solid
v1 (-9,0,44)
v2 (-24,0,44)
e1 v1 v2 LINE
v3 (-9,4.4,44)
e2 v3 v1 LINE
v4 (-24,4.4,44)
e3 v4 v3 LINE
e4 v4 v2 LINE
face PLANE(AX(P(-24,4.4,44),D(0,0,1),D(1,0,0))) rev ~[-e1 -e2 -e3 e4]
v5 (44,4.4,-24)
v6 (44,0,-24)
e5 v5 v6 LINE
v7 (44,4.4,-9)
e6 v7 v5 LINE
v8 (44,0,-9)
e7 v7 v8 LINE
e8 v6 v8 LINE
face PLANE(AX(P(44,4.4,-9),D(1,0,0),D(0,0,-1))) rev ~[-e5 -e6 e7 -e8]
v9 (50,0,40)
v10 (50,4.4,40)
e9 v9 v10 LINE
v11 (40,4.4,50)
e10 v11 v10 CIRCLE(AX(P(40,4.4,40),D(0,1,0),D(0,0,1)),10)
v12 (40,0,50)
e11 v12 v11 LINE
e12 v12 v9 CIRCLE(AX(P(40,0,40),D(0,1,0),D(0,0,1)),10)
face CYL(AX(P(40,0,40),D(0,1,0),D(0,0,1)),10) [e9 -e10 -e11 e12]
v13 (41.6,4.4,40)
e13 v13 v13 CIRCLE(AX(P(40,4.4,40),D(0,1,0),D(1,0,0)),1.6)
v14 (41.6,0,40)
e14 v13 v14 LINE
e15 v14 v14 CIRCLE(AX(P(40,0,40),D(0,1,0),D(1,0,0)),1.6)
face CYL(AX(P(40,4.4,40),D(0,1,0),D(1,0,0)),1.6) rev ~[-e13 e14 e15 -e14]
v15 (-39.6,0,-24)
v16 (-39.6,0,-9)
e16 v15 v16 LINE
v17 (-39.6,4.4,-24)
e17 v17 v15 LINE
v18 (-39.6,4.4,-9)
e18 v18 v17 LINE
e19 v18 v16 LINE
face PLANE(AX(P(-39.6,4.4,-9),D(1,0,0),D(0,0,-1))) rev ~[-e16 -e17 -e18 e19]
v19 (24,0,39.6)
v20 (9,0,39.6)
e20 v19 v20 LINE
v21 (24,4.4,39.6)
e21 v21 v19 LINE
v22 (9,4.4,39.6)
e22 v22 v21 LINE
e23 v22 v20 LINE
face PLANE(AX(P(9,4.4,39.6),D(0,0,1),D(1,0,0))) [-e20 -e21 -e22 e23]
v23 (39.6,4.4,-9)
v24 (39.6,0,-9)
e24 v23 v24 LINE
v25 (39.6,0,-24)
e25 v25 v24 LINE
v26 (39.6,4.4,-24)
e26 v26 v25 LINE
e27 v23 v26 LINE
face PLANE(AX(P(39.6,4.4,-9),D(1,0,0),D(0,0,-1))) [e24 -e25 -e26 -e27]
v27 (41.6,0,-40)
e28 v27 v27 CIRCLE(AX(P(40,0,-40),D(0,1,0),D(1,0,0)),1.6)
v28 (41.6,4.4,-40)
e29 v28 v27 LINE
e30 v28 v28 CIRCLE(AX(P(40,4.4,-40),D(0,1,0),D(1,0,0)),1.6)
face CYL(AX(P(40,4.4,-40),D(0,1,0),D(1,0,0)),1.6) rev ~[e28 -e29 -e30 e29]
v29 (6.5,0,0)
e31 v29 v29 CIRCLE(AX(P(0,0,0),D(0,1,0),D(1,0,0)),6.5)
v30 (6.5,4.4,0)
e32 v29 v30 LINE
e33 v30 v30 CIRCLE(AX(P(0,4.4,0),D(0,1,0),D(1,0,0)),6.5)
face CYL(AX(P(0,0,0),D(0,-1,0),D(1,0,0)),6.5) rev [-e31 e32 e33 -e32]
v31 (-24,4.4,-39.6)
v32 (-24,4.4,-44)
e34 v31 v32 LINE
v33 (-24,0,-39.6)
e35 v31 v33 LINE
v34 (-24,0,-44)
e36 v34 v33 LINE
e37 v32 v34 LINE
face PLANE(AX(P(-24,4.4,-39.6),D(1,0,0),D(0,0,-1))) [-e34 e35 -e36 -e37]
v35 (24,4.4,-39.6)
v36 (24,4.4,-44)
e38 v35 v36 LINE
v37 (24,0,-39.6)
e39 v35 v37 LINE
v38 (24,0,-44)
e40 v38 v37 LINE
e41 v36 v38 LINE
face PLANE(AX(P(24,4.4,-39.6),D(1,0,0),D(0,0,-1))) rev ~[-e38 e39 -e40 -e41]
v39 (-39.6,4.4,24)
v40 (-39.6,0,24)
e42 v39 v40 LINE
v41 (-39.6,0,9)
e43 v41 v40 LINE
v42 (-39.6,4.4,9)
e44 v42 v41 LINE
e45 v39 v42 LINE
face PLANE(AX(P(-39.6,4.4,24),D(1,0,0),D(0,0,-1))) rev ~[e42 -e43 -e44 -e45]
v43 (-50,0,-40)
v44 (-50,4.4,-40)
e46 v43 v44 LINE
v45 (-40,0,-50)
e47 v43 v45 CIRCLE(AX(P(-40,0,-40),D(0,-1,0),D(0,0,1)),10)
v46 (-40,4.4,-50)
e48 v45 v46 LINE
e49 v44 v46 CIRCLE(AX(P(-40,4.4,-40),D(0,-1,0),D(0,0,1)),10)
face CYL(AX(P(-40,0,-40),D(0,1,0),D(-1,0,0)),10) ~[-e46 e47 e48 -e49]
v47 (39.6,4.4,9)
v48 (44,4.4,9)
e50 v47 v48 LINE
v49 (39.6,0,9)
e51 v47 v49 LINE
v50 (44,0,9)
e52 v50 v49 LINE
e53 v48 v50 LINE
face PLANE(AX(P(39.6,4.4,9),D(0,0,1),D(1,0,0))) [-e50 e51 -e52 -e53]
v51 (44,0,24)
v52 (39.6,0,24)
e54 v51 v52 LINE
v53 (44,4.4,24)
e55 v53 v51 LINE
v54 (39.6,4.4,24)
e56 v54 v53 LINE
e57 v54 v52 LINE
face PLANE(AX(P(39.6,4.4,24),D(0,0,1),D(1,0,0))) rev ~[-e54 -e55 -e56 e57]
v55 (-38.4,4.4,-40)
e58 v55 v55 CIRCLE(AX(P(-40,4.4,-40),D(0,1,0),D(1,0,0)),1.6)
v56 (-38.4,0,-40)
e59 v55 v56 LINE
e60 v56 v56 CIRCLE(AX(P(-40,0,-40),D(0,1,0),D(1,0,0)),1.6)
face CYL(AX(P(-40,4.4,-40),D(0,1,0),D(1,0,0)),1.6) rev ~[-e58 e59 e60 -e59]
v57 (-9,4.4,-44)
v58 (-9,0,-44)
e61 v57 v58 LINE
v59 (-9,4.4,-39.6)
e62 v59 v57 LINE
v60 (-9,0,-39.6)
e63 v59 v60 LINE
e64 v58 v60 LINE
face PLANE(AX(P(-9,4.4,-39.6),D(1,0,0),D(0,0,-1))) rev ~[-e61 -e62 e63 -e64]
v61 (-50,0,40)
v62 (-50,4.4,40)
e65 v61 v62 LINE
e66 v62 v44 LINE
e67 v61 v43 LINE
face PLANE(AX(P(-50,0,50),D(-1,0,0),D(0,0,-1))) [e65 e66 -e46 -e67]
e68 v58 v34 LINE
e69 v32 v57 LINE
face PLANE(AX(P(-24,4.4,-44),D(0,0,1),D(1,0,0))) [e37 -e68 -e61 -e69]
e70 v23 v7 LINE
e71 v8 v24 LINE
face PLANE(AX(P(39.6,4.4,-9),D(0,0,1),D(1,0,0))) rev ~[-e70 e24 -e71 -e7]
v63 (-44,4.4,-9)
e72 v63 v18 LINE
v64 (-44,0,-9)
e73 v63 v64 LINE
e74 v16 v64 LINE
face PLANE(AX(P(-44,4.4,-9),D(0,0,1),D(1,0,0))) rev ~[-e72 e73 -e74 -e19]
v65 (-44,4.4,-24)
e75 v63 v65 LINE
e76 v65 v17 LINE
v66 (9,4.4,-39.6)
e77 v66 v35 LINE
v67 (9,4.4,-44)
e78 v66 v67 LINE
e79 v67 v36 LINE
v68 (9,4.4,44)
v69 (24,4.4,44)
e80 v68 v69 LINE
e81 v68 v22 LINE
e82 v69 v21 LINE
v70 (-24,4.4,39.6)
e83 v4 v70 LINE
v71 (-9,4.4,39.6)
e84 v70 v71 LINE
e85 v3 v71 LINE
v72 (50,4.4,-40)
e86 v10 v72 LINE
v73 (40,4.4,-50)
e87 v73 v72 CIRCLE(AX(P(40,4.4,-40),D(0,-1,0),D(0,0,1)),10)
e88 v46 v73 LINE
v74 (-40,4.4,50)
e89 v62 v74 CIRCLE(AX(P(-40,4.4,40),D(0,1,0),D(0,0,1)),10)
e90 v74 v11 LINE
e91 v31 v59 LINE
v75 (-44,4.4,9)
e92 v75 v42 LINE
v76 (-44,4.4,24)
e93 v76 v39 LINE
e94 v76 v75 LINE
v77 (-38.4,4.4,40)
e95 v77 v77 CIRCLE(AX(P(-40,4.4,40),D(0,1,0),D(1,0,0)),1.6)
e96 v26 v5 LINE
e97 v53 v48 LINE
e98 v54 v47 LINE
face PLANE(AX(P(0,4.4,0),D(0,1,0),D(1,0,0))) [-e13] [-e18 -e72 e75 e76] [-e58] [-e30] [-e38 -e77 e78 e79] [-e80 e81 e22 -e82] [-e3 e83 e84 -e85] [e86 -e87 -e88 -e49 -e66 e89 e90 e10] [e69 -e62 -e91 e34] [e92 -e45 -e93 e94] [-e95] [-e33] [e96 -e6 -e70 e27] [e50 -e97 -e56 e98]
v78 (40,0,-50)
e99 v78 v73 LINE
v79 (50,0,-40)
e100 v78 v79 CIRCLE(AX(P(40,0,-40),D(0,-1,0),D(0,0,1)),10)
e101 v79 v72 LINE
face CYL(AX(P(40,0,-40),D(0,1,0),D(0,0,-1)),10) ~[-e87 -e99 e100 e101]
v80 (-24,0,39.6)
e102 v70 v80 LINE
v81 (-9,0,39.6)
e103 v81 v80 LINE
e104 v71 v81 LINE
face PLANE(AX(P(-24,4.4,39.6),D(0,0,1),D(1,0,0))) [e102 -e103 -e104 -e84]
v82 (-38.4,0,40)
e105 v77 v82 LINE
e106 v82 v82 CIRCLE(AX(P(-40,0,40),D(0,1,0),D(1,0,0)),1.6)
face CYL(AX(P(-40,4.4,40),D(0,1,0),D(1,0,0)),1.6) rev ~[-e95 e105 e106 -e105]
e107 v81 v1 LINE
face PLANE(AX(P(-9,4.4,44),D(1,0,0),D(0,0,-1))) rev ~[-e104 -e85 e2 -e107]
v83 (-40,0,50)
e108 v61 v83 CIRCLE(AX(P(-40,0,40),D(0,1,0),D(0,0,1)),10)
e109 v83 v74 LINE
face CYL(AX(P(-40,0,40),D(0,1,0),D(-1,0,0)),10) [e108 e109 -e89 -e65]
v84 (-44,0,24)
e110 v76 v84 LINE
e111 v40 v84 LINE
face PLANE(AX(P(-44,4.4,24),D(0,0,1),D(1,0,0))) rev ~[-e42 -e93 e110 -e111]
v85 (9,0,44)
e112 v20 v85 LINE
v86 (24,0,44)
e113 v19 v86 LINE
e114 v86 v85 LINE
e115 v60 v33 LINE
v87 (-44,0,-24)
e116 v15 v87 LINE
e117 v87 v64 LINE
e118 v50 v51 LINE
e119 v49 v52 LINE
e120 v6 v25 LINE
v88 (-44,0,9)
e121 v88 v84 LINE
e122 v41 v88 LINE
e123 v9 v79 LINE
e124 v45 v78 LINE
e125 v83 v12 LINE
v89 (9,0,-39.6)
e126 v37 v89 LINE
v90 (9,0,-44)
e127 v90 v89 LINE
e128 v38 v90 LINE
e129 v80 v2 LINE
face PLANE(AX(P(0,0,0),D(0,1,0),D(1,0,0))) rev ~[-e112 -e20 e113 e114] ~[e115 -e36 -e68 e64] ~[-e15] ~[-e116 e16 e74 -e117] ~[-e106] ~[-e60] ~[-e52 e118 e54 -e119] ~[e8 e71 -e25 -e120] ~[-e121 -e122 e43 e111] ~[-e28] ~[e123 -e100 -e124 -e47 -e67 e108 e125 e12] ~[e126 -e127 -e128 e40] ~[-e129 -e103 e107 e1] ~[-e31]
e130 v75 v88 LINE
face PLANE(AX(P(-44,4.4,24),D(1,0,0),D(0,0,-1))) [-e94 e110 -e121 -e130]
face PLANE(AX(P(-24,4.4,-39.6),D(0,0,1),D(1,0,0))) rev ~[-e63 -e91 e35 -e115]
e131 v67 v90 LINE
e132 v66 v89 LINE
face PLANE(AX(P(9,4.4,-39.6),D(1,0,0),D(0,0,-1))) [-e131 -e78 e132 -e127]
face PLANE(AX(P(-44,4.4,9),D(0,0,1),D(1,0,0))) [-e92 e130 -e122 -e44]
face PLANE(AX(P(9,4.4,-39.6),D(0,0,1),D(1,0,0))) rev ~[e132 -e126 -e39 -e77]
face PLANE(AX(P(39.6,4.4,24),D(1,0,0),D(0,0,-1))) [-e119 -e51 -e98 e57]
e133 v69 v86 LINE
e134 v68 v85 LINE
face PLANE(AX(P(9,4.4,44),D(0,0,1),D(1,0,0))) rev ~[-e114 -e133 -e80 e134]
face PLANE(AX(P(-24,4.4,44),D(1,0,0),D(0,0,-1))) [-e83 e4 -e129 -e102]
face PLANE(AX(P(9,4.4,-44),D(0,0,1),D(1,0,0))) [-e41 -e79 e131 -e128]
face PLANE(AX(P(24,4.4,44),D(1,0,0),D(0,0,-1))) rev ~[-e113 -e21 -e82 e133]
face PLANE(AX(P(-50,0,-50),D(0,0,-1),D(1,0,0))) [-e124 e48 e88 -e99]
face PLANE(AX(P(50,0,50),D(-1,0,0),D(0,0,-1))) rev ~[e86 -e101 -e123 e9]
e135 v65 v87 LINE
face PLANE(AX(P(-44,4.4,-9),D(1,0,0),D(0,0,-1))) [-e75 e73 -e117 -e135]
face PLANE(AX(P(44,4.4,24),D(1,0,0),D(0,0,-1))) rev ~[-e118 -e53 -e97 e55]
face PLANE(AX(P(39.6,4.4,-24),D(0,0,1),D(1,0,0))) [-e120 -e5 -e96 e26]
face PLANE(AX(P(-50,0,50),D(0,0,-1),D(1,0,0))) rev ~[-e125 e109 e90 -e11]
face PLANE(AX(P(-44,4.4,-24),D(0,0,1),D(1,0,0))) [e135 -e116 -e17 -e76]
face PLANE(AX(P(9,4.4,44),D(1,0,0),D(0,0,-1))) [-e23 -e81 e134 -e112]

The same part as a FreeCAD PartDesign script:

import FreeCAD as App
import Part
import Sketcher
from FreeCAD import Vector


def edges_at(feature, points):
    """Names of the edges that pass closest to the given points."""
    edges = feature.Shape.Edges
    near = lambda p: min(range(len(edges)), key=lambda i: edges[i].distToShape(Part.Vertex(*p))[0])
    return sorted({f"Edge{near(p) + 1}" for p in points})

doc = App.newDocument("Part")
body = doc.addObject("PartDesign::Body", "Body")

sketch1 = body.newObject("Sketcher::SketchObject", "Sketch")
sketch1.AttachmentSupport = (doc.getObject("XZ_Plane"), [""])
sketch1.MapMode = "FlatFace"
sketch1.addGeometry([
    Part.LineSegment(Vector(-50, -50, 0), Vector(-50, 50, 0)),
    Part.LineSegment(Vector(-50, 50, 0), Vector(50, 50, 0)),
    Part.LineSegment(Vector(50, 50, 0), Vector(50, -50, 0)),
    Part.LineSegment(Vector(50, -50, 0), Vector(-50, -50, 0)),
    Part.Circle(Vector(0, 0, 0), Vector(0, 0, 1), 6),
], False)
sketch1.addConstraint([
    Sketcher.Constraint("Coincident", 0, 2, 1, 1),
    Sketcher.Constraint("Coincident", 1, 2, 2, 1),
    Sketcher.Constraint("Coincident", 2, 2, 3, 1),
    Sketcher.Constraint("Coincident", 3, 2, 0, 1),
    Sketcher.Constraint("Vertical", 0),
    Sketcher.Constraint("Horizontal", 1),
    Sketcher.Constraint("Vertical", 2),
    Sketcher.Constraint("Horizontal", 3),
    Sketcher.Constraint("Coincident", 4, 3, -1, 1),
    Sketcher.Constraint("Symmetric", 0, 2, 2, 2, -1, 1),
    Sketcher.Constraint("Equal", 3, 0),
    Sketcher.Constraint("Diameter", 4, 13.0),
    Sketcher.Constraint("DistanceX", 1, 1, 1, 2, 100.0),
])
pad1 = body.newObject("PartDesign::Pad", "Pad")
pad1.Profile = sketch1
pad1.Length = 4.4
pad1.Reversed = True
doc.recompute()

fillet = body.newObject("PartDesign::Fillet", "Fillet")
fillet.Base = (pad1, edges_at(pad1, [
    (50, 2.2, 50),
    (-50, 2.2, 50),
    (-50, 2.2, -50),
    (50, 2.2, -50),
]))
fillet.Radius = 10

sketch2 = body.newObject("Sketcher::SketchObject", "Sketch001")
sketch2.AttachmentSupport = (doc.getObject("XZ_Plane"), [""])
sketch2.MapMode = "FlatFace"
sketch2.AttachmentOffset = App.Placement(Vector(0, 0, -4.4), App.Rotation())
sketch2.addGeometry(Part.Circle(Vector(40, -40, 0), Vector(0, 0, 1), 1.6), False)
sketch2.addConstraint([
    Sketcher.Constraint("Diameter", 0, 3.2),
    Sketcher.Constraint("DistanceX", -1, 1, 0, 3, 40.0),
    Sketcher.Constraint("DistanceY", 0, 3, -1, 1, 40.0),
])
pocket1 = body.newObject("PartDesign::Pocket", "Pocket")
pocket1.Profile = sketch2
pocket1.Type = "UpToFirst"
pocket1.Reversed = True

sketch3 = body.newObject("Sketcher::SketchObject", "Sketch002")
sketch3.AttachmentSupport = (doc.getObject("XZ_Plane"), [""])
sketch3.MapMode = "FlatFace"
sketch3.AttachmentOffset = App.Placement(Vector(0, 0, -4.4), App.Rotation())
sketch3.addGeometry(Part.Circle(Vector(40, 40, 0), Vector(0, 0, 1), 1.6), False)
sketch3.addConstraint([
    Sketcher.Constraint("Diameter", 0, 3.2),
    Sketcher.Constraint("DistanceX", -1, 1, 0, 3, 40.0),
    Sketcher.Constraint("DistanceY", -1, 1, 0, 3, 40.0),
])
pocket2 = body.newObject("PartDesign::Pocket", "Pocket001")
pocket2.Profile = sketch3
pocket2.Type = "UpToFirst"
pocket2.Reversed = True

sketch4 = body.newObject("Sketcher::SketchObject", "Sketch003")
sketch4.AttachmentSupport = (doc.getObject("XZ_Plane"), [""])
sketch4.MapMode = "FlatFace"
sketch4.AttachmentOffset = App.Placement(Vector(0, 0, -4.4), App.Rotation())
sketch4.addGeometry(Part.Circle(Vector(-40, 40, 0), Vector(0, 0, 1), 1.6), False)
sketch4.addConstraint([
    Sketcher.Constraint("Diameter", 0, 3.2),
    Sketcher.Constraint("DistanceX", 0, 3, -1, 1, 40.0),
    Sketcher.Constraint("DistanceY", -1, 1, 0, 3, 40.0),
])
pocket3 = body.newObject("PartDesign::Pocket", "Pocket002")
pocket3.Profile = sketch4
pocket3.Type = "UpToFirst"
pocket3.Reversed = True

sketch5 = body.newObject("Sketcher::SketchObject", "Sketch004")
sketch5.AttachmentSupport = (doc.getObject("XZ_Plane"), [""])
sketch5.MapMode = "FlatFace"
sketch5.AttachmentOffset = App.Placement(Vector(0, 0, -4.4), App.Rotation())
sketch5.addGeometry(Part.Circle(Vector(-40, -40, 0), Vector(0, 0, 1), 1.6), False)
sketch5.addConstraint([
    Sketcher.Constraint("Diameter", 0, 3.2),
    Sketcher.Constraint("DistanceX", 0, 3, -1, 1, 40.0),
    Sketcher.Constraint("DistanceY", 0, 3, -1, 1, 40.0),
])
pocket4 = body.newObject("PartDesign::Pocket", "Pocket003")
pocket4.Profile = sketch5
pocket4.Type = "UpToFirst"
pocket4.Reversed = True

sketch6 = body.newObject("Sketcher::SketchObject", "Sketch005")
sketch6.AttachmentSupport = (doc.getObject("XZ_Plane"), [""])
sketch6.MapMode = "FlatFace"
sketch6.AttachmentOffset = App.Placement(Vector(0, 0, -4.4), App.Rotation())
sketch6.addGeometry([
    Part.LineSegment(Vector(-24, -44, 0), Vector(-24, -39.6, 0)),
    Part.LineSegment(Vector(-24, -39.6, 0), Vector(-9, -39.6, 0)),
    Part.LineSegment(Vector(-9, -39.6, 0), Vector(-9, -44, 0)),
    Part.LineSegment(Vector(-9, -44, 0), Vector(-24, -44, 0)),
], False)
sketch6.addConstraint([
    Sketcher.Constraint("Coincident", 0, 2, 1, 1),
    Sketcher.Constraint("Coincident", 1, 2, 2, 1),
    Sketcher.Constraint("Coincident", 2, 2, 3, 1),
    Sketcher.Constraint("Coincident", 3, 2, 0, 1),
    Sketcher.Constraint("Vertical", 0),
    Sketcher.Constraint("Horizontal", 1),
    Sketcher.Constraint("Vertical", 2),
    Sketcher.Constraint("Horizontal", 3),
    Sketcher.Constraint("DistanceX", 1, 1, 1, 2, 15.0),
    Sketcher.Constraint("DistanceY", 0, 1, 0, 2, 4.4),
    Sketcher.Constraint("DistanceX", 0, 2, -1, 1, 24.0),
    Sketcher.Constraint("DistanceY", 2, 2, -1, 1, 44.0),
])
pocket5 = body.newObject("PartDesign::Pocket", "Pocket004")
pocket5.Profile = sketch6
pocket5.Type = "UpToFirst"
pocket5.Reversed = True

sketch7 = body.newObject("Sketcher::SketchObject", "Sketch006")
sketch7.AttachmentSupport = (doc.getObject("XZ_Plane"), [""])
sketch7.MapMode = "FlatFace"
sketch7.AttachmentOffset = App.Placement(Vector(0, 0, -4.4), App.Rotation())
sketch7.addGeometry([
    Part.LineSegment(Vector(9, -44, 0), Vector(9, -39.6, 0)),
    Part.LineSegment(Vector(9, -39.6, 0), Vector(24, -39.6, 0)),
    Part.LineSegment(Vector(24, -39.6, 0), Vector(24, -44, 0)),
    Part.LineSegment(Vector(24, -44, 0), Vector(9, -44, 0)),
], False)
sketch7.addConstraint([
    Sketcher.Constraint("Coincident", 0, 2, 1, 1),
    Sketcher.Constraint("Coincident", 1, 2, 2, 1),
    Sketcher.Constraint("Coincident", 2, 2, 3, 1),
    Sketcher.Constraint("Coincident", 3, 2, 0, 1),
    Sketcher.Constraint("Vertical", 0),
    Sketcher.Constraint("Horizontal", 1),
    Sketcher.Constraint("Vertical", 2),
    Sketcher.Constraint("Horizontal", 3),
    Sketcher.Constraint("DistanceX", 1, 1, 1, 2, 15.0),
    Sketcher.Constraint("DistanceY", 0, 1, 0, 2, 4.4),
    Sketcher.Constraint("DistanceX", -1, 1, 0, 2, 9.0),
    Sketcher.Constraint("DistanceY", 2, 2, -1, 1, 44.0),
])
pocket6 = body.newObject("PartDesign::Pocket", "Pocket005")
pocket6.Profile = sketch7
pocket6.Type = "UpToFirst"
pocket6.Reversed = True

sketch8 = body.newObject("Sketcher::SketchObject", "Sketch007")
sketch8.AttachmentSupport = (doc.getObject("XZ_Plane"), [""])
sketch8.MapMode = "FlatFace"
sketch8.AttachmentOffset = App.Placement(Vector(0, 0, -4.4), App.Rotation())
sketch8.addGeometry([
    Part.LineSegment(Vector(39.6, 9, 0), Vector(39.6, 24, 0)),
    Part.LineSegment(Vector(39.6, 24, 0), Vector(44, 24, 0)),
    Part.LineSegment(Vector(44, 24, 0), Vector(44, 9, 0)),
    Part.LineSegment(Vector(44, 9, 0), Vector(39.6, 9, 0)),
], False)
sketch8.addConstraint([
    Sketcher.Constraint("Coincident", 0, 2, 1, 1),
    Sketcher.Constraint("Coincident", 1, 2, 2, 1),
    Sketcher.Constraint("Coincident", 2, 2, 3, 1),
    Sketcher.Constraint("Coincident", 3, 2, 0, 1),
    Sketcher.Constraint("Vertical", 0),
    Sketcher.Constraint("Horizontal", 1),
    Sketcher.Constraint("Vertical", 2),
    Sketcher.Constraint("Horizontal", 3),
    Sketcher.Constraint("DistanceY", 0, 1, 0, 2, 15.0),
    Sketcher.Constraint("DistanceX", 1, 1, 1, 2, 4.4),
    Sketcher.Constraint("DistanceY", -1, 1, 0, 2, 24.0),
    Sketcher.Constraint("DistanceX", -1, 1, 1, 2, 44.0),
])
pocket7 = body.newObject("PartDesign::Pocket", "Pocket006")
pocket7.Profile = sketch8
pocket7.Type = "UpToFirst"
pocket7.Reversed = True

sketch9 = body.newObject("Sketcher::SketchObject", "Sketch008")
sketch9.AttachmentSupport = (doc.getObject("XZ_Plane"), [""])
sketch9.MapMode = "FlatFace"
sketch9.AttachmentOffset = App.Placement(Vector(0, 0, -4.4), App.Rotation())
sketch9.addGeometry([
    Part.LineSegment(Vector(39.6, -24, 0), Vector(39.6, -9, 0)),
    Part.LineSegment(Vector(39.6, -9, 0), Vector(44, -9, 0)),
    Part.LineSegment(Vector(44, -9, 0), Vector(44, -24, 0)),
    Part.LineSegment(Vector(44, -24, 0), Vector(39.6, -24, 0)),
], False)
sketch9.addConstraint([
    Sketcher.Constraint("Coincident", 0, 2, 1, 1),
    Sketcher.Constraint("Coincident", 1, 2, 2, 1),
    Sketcher.Constraint("Coincident", 2, 2, 3, 1),
    Sketcher.Constraint("Coincident", 3, 2, 0, 1),
    Sketcher.Constraint("Vertical", 0),
    Sketcher.Constraint("Horizontal", 1),
    Sketcher.Constraint("Vertical", 2),
    Sketcher.Constraint("Horizontal", 3),
    Sketcher.Constraint("DistanceY", 0, 1, 0, 2, 15.0),
    Sketcher.Constraint("DistanceX", 1, 1, 1, 2, 4.4),
    Sketcher.Constraint("DistanceY", 0, 2, -1, 1, 9.0),
    Sketcher.Constraint("DistanceX", -1, 1, 1, 2, 44.0),
])
pocket8 = body.newObject("PartDesign::Pocket", "Pocket007")
pocket8.Profile = sketch9
pocket8.Type = "UpToFirst"
pocket8.Reversed = True

sketch10 = body.newObject("Sketcher::SketchObject", "Sketch009")
sketch10.AttachmentSupport = (doc.getObject("XZ_Plane"), [""])
sketch10.MapMode = "FlatFace"
sketch10.AttachmentOffset = App.Placement(Vector(0, 0, -4.4), App.Rotation())
sketch10.addGeometry([
    Part.LineSegment(Vector(-24, 39.6, 0), Vector(-24, 44, 0)),
    Part.LineSegment(Vector(-24, 44, 0), Vector(-9, 44, 0)),
    Part.LineSegment(Vector(-9, 44, 0), Vector(-9, 39.6, 0)),
    Part.LineSegment(Vector(-9, 39.6, 0), Vector(-24, 39.6, 0)),
], False)
sketch10.addConstraint([
    Sketcher.Constraint("Coincident", 0, 2, 1, 1),
    Sketcher.Constraint("Coincident", 1, 2, 2, 1),
    Sketcher.Constraint("Coincident", 2, 2, 3, 1),
    Sketcher.Constraint("Coincident", 3, 2, 0, 1),
    Sketcher.Constraint("Vertical", 0),
    Sketcher.Constraint("Horizontal", 1),
    Sketcher.Constraint("Vertical", 2),
    Sketcher.Constraint("Horizontal", 3),
    Sketcher.Constraint("DistanceX", 1, 1, 1, 2, 15.0),
    Sketcher.Constraint("DistanceY", 0, 1, 0, 2, 4.4),
    Sketcher.Constraint("DistanceX", 0, 2, -1, 1, 24.0),
    Sketcher.Constraint("DistanceY", -1, 1, 0, 2, 44.0),
])
pocket9 = body.newObject("PartDesign::Pocket", "Pocket008")
pocket9.Profile = sketch10
pocket9.Type = "UpToFirst"
pocket9.Reversed = True

sketch11 = body.newObject("Sketcher::SketchObject", "Sketch010")
sketch11.AttachmentSupport = (doc.getObject("XZ_Plane"), [""])
sketch11.MapMode = "FlatFace"
sketch11.AttachmentOffset = App.Placement(Vector(0, 0, -4.4), App.Rotation())
sketch11.addGeometry([
    Part.LineSegment(Vector(9, 39.6, 0), Vector(9, 44, 0)),
    Part.LineSegment(Vector(9, 44, 0), Vector(24, 44, 0)),
    Part.LineSegment(Vector(24, 44, 0), Vector(24, 39.6, 0)),
    Part.LineSegment(Vector(24, 39.6, 0), Vector(9, 39.6, 0)),
], False)
sketch11.addConstraint([
    Sketcher.Constraint("Coincident", 0, 2, 1, 1),
    Sketcher.Constraint("Coincident", 1, 2, 2, 1),
    Sketcher.Constraint("Coincident", 2, 2, 3, 1),
    Sketcher.Constraint("Coincident", 3, 2, 0, 1),
    Sketcher.Constraint("Vertical", 0),
    Sketcher.Constraint("Horizontal", 1),
    Sketcher.Constraint("Vertical", 2),
    Sketcher.Constraint("Horizontal", 3),
    Sketcher.Constraint("DistanceX", 1, 1, 1, 2, 15.0),
    Sketcher.Constraint("DistanceY", 0, 1, 0, 2, 4.4),
    Sketcher.Constraint("DistanceX", -1, 1, 0, 2, 9.0),
    Sketcher.Constraint("DistanceY", -1, 1, 0, 2, 44.0),
])
pocket10 = body.newObject("PartDesign::Pocket", "Pocket009")
pocket10.Profile = sketch11
pocket10.Type = "UpToFirst"
pocket10.Reversed = True

sketch12 = body.newObject("Sketcher::SketchObject", "Sketch011")
sketch12.AttachmentSupport = (doc.getObject("XZ_Plane"), [""])
sketch12.MapMode = "FlatFace"
sketch12.AttachmentOffset = App.Placement(Vector(0, 0, -4.4), App.Rotation())
sketch12.addGeometry([
    Part.LineSegment(Vector(-44, -24, 0), Vector(-44, -9, 0)),
    Part.LineSegment(Vector(-44, -9, 0), Vector(-39.6, -9, 0)),
    Part.LineSegment(Vector(-39.6, -9, 0), Vector(-39.6, -24, 0)),
    Part.LineSegment(Vector(-39.6, -24, 0), Vector(-44, -24, 0)),
], False)
sketch12.addConstraint([
    Sketcher.Constraint("Coincident", 0, 2, 1, 1),
    Sketcher.Constraint("Coincident", 1, 2, 2, 1),
    Sketcher.Constraint("Coincident", 2, 2, 3, 1),
    Sketcher.Constraint("Coincident", 3, 2, 0, 1),
    Sketcher.Constraint("Vertical", 0),
    Sketcher.Constraint("Horizontal", 1),
    Sketcher.Constraint("Vertical", 2),
    Sketcher.Constraint("Horizontal", 3),
    Sketcher.Constraint("DistanceY", 0, 1, 0, 2, 15.0),
    Sketcher.Constraint("DistanceX", 1, 1, 1, 2, 4.4),
    Sketcher.Constraint("DistanceX", 0, 2, -1, 1, 44.0),
    Sketcher.Constraint("DistanceY", 0, 2, -1, 1, 9.0),
])
pocket11 = body.newObject("PartDesign::Pocket", "Pocket010")
pocket11.Profile = sketch12
pocket11.Type = "UpToFirst"
pocket11.Reversed = True

sketch13 = body.newObject("Sketcher::SketchObject", "Sketch012")
sketch13.AttachmentSupport = (doc.getObject("XZ_Plane"), [""])
sketch13.MapMode = "FlatFace"
sketch13.AttachmentOffset = App.Placement(Vector(0, 0, -4.4), App.Rotation())
sketch13.addGeometry([
    Part.LineSegment(Vector(-44, 9, 0), Vector(-44, 24, 0)),
    Part.LineSegment(Vector(-44, 24, 0), Vector(-39.6, 24, 0)),
    Part.LineSegment(Vector(-39.6, 24, 0), Vector(-39.6, 9, 0)),
    Part.LineSegment(Vector(-39.6, 9, 0), Vector(-44, 9, 0)),
], False)
sketch13.addConstraint([
    Sketcher.Constraint("Coincident", 0, 2, 1, 1),
    Sketcher.Constraint("Coincident", 1, 2, 2, 1),
    Sketcher.Constraint("Coincident", 2, 2, 3, 1),
    Sketcher.Constraint("Coincident", 3, 2, 0, 1),
    Sketcher.Constraint("Vertical", 0),
    Sketcher.Constraint("Horizontal", 1),
    Sketcher.Constraint("Vertical", 2),
    Sketcher.Constraint("Horizontal", 3),
    Sketcher.Constraint("DistanceY", 0, 1, 0, 2, 15.0),
    Sketcher.Constraint("DistanceX", 1, 1, 1, 2, 4.4),
    Sketcher.Constraint("DistanceX", 0, 2, -1, 1, 44.0),
    Sketcher.Constraint("DistanceY", -1, 1, 0, 2, 24.0),
])
pocket12 = body.newObject("PartDesign::Pocket", "Pocket011")
pocket12.Profile = sketch13
pocket12.Type = "UpToFirst"
pocket12.Reversed = True

doc.recompute()
